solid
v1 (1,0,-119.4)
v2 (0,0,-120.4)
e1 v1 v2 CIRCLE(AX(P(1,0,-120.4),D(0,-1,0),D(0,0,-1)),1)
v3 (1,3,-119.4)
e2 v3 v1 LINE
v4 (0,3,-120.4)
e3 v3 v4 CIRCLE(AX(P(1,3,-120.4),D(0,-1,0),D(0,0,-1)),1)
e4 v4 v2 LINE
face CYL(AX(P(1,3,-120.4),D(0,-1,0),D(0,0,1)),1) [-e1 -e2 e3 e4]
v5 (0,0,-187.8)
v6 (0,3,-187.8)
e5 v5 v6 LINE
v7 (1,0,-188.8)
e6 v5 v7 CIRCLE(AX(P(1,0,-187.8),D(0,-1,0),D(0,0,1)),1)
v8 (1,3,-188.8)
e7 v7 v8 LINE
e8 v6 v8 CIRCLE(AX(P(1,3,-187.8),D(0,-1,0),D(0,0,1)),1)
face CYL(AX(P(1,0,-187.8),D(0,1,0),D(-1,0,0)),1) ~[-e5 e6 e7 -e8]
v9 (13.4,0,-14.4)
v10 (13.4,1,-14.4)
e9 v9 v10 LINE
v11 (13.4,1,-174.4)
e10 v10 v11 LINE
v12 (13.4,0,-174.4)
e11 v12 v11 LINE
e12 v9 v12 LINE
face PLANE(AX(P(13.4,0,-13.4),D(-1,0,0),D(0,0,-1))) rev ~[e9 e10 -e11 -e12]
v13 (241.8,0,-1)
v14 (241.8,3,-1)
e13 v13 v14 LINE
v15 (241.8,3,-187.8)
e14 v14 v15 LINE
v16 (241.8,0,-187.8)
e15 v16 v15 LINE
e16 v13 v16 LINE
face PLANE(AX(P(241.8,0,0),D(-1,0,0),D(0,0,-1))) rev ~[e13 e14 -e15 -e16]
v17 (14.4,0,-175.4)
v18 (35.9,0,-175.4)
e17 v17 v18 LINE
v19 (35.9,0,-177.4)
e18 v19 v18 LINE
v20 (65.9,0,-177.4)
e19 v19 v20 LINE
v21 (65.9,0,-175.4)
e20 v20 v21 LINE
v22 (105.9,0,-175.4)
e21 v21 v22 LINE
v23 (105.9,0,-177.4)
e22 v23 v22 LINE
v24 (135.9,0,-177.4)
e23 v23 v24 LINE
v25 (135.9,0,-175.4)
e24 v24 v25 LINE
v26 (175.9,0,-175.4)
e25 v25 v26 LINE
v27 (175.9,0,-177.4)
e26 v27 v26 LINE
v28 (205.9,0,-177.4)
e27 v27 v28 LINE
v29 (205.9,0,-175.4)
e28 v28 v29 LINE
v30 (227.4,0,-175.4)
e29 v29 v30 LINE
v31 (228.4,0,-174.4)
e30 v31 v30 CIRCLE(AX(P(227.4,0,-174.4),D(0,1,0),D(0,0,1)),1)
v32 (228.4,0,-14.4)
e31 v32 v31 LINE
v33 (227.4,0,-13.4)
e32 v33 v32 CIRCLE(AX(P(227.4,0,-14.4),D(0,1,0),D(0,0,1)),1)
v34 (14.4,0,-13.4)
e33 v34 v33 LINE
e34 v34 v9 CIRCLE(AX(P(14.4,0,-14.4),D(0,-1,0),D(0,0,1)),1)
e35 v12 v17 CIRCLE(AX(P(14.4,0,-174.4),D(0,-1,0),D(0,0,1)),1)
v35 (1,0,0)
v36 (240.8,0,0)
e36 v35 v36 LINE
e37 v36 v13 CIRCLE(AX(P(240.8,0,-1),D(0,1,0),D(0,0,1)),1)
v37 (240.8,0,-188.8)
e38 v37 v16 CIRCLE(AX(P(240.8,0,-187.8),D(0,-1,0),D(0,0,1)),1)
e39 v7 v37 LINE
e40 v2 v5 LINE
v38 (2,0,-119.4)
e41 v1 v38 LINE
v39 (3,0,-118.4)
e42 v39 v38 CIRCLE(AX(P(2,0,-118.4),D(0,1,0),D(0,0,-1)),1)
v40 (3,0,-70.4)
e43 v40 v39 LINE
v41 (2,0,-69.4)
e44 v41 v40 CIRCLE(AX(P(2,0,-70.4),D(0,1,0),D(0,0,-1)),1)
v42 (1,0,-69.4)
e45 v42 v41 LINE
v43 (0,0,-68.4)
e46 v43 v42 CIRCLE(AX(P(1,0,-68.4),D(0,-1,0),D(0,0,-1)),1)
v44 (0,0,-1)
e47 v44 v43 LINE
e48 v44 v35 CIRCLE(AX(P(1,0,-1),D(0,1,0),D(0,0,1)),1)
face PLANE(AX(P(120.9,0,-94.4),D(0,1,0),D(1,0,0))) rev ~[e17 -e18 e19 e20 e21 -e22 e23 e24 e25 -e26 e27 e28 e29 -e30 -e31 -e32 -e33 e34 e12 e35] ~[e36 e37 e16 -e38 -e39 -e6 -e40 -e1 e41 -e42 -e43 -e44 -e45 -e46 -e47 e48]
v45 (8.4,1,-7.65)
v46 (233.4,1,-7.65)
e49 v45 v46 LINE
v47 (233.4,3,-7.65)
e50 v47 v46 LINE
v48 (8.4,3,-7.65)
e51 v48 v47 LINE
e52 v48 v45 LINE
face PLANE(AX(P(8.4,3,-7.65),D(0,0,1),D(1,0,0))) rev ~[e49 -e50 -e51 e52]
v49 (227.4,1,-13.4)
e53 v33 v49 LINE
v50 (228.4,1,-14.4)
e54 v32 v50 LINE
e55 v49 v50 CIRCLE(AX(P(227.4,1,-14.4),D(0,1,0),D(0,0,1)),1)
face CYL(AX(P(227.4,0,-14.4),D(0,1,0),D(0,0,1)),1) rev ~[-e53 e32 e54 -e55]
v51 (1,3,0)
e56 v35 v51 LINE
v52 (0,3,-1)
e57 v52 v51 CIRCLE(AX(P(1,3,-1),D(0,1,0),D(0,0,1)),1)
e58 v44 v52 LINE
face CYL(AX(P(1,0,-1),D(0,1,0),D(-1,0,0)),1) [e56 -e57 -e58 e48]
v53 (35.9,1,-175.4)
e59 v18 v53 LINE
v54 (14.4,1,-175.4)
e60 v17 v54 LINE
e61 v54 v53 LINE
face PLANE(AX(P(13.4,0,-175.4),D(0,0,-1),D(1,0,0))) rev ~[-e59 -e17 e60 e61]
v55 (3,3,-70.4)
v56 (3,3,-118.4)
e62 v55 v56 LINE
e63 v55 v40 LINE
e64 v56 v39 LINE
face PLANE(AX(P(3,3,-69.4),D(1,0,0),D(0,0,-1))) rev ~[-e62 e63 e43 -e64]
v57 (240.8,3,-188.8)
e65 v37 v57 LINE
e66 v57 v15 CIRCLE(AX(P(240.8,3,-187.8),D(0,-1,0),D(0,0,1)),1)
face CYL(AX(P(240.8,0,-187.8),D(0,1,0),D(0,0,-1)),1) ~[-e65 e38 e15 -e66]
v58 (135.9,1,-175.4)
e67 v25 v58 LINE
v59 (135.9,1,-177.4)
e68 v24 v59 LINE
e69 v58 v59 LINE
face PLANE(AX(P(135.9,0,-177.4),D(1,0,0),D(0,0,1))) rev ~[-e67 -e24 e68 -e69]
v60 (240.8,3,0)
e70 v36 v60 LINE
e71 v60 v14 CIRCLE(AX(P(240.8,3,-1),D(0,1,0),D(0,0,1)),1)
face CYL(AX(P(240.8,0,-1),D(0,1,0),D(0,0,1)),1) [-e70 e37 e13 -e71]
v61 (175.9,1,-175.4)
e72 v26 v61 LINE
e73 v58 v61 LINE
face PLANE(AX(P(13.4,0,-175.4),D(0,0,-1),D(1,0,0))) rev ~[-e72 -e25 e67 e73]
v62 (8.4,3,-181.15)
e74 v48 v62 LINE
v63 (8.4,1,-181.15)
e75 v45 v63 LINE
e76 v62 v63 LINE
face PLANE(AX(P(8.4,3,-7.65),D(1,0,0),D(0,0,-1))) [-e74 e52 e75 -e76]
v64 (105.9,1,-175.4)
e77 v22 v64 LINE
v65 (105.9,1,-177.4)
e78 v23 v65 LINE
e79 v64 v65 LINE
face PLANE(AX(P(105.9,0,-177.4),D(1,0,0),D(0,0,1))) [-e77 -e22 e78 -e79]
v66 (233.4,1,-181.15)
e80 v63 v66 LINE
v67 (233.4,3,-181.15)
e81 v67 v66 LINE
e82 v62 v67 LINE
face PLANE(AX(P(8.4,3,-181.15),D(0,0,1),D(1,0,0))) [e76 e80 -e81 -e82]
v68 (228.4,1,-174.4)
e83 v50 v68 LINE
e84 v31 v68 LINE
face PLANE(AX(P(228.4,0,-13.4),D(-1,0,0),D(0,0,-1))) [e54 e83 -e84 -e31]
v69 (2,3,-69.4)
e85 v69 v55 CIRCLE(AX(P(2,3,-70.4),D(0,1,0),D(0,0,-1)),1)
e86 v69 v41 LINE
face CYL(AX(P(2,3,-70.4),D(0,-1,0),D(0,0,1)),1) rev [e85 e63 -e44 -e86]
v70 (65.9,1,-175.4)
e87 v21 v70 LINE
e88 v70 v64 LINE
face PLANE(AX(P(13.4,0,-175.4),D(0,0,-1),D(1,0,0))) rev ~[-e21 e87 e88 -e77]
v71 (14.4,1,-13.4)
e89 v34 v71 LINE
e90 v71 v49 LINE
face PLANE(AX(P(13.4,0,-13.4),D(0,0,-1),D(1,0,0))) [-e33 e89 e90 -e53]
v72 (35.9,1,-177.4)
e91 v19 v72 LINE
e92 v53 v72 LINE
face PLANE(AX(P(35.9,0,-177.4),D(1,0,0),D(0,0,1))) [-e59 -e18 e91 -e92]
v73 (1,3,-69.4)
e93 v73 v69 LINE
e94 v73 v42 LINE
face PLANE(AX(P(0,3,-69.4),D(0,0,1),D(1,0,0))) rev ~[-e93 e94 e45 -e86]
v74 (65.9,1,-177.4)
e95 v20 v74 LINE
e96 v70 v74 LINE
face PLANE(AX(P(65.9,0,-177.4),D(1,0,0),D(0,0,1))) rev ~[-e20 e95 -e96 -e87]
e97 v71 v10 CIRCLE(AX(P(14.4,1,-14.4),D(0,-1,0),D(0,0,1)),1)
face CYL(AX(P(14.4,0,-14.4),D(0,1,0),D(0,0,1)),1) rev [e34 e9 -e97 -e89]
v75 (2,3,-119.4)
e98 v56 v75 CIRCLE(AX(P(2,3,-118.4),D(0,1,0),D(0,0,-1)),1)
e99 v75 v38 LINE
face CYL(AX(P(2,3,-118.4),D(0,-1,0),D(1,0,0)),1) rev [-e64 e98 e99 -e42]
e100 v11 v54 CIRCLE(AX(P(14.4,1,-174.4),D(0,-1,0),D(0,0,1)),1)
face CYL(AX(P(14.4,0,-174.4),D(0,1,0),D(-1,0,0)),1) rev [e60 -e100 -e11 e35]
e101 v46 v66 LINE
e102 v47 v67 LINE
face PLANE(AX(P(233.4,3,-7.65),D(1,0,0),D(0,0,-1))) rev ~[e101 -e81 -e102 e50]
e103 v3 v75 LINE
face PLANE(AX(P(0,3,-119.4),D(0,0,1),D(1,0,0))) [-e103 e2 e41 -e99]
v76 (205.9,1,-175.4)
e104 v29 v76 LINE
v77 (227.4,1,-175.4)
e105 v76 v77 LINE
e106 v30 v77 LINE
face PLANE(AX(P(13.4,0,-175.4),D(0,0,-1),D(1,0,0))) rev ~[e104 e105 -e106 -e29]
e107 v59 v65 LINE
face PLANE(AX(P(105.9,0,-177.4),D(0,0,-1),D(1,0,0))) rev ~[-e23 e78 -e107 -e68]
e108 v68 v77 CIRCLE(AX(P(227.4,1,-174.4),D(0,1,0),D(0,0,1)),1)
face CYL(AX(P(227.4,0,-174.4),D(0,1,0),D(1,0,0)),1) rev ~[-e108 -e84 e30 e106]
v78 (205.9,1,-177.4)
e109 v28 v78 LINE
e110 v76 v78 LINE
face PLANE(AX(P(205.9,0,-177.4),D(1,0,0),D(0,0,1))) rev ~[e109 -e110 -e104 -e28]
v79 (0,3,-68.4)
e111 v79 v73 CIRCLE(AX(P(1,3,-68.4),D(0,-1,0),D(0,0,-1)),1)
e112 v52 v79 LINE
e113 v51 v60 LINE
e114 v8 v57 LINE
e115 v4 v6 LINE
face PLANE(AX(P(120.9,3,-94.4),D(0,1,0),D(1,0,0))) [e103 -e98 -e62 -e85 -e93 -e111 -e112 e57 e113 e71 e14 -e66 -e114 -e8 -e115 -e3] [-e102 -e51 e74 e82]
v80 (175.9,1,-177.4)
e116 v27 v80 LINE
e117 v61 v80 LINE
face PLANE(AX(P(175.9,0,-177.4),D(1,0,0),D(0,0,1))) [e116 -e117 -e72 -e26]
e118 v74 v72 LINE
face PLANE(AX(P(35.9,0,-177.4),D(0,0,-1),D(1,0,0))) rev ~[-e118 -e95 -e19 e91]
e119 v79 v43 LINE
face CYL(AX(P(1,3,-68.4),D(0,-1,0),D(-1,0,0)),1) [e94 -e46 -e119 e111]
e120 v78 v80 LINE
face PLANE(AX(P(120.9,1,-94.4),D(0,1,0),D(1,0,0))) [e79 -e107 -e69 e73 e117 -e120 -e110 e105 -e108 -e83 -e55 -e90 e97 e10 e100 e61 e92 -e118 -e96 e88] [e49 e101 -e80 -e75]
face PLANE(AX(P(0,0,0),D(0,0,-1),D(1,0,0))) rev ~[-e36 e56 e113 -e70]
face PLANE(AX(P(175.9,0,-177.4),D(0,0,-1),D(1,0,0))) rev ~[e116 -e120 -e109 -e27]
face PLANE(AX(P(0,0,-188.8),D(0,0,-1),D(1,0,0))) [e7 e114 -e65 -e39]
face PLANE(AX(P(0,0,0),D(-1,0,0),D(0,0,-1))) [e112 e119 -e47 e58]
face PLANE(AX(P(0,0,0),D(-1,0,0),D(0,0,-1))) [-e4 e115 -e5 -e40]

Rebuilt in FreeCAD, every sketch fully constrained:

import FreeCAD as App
import Part
import Sketcher


def edges_at(feature, points):
    """Names of the edges that pass closest to the given points."""
    edges = feature.Shape.Edges
    near = lambda p: min(range(len(edges)), key=lambda i: edges[i].distToShape(Part.Vertex(*p))[0])
    return sorted({f"Edge{near(p) + 1}" for p in points})

doc = App.newDocument("Part")
params = doc.addObject("Spreadsheet::Sheet", "Params")
for row, (alias, value) in enumerate([
    ("sketch1_width", "215 mm"),
    ("sketch1_height", "162 mm"),
    ("sketch1_width2", "241.8 mm"),
    ("sketch1_height2", "188.8 mm"),
    ("pad1_length", "3 mm"),
    ("sketch2_width", "225 mm"),
    ("sketch2_height", "173.5 mm"),
    ("pocket1_length", "2 mm"),
    ("sketch3_width", "3 mm"),
    ("sketch3_height", "50 mm"),
    ("pocket2_length", "5 mm"),
    ("fillet_radius", "1 mm"),
    ("sketch4_width", "30 mm"),
    ("sketch4_height", "2 mm"),
], start=1):
    params.set(f"A{row}", alias)
    params.set(f"B{row}", "=" + value)
    params.setAlias(f"B{row}", alias)

body = doc.addObject("PartDesign::Body", "Body")

sketch1 = body.newObject("Sketcher::SketchObject", "Sketch")
sketch1.AttachmentSupport = (doc.getObject("XZ_Plane"), [""])
sketch1.MapMode = "FlatFace"
sketch1.addGeometry([
    Part.LineSegment(App.Vector(0, -189, 0), App.Vector(0, 0, 0)),
    Part.LineSegment(App.Vector(0, 0, 0), App.Vector(242, 0, 0)),
    Part.LineSegment(App.Vector(242, 0, 0), App.Vector(242, -189, 0)),
    Part.LineSegment(App.Vector(242, -189, 0), App.Vector(0, -189, 0)),
    Part.LineSegment(App.Vector(228, -13, 0), App.Vector(13, -13, 0)),
    Part.LineSegment(App.Vector(13, -13, 0), App.Vector(13, -175, 0)),
    Part.LineSegment(App.Vector(13, -175, 0), App.Vector(228, -175, 0)),
    Part.LineSegment(App.Vector(228, -175, 0), App.Vector(228, -13, 0)),
], False)
sketch1.addConstraint([
    Sketcher.Constraint("Coincident", 0, 2, 1, 1),
    Sketcher.Constraint("Coincident", 1, 2, 2, 1),
    Sketcher.Constraint("Coincident", 2, 2, 3, 1),
    Sketcher.Constraint("Coincident", 3, 2, 0, 1),
    Sketcher.Constraint("Coincident", 4, 2, 5, 1),
    Sketcher.Constraint("Coincident", 5, 2, 6, 1),
    Sketcher.Constraint("Coincident", 6, 2, 7, 1),
    Sketcher.Constraint("Coincident", 7, 2, 4, 1),
    Sketcher.Constraint("Vertical", 0),
    Sketcher.Constraint("Horizontal", 1),
    Sketcher.Constraint("Vertical", 2),
    Sketcher.Constraint("Horizontal", 3),
    Sketcher.Constraint("Horizontal", 4),
    Sketcher.Constraint("Vertical", 5),
    Sketcher.Constraint("Horizontal", 6),
    Sketcher.Constraint("Vertical", 7),
    Sketcher.Constraint("Coincident", 0, 2, -1, 1),
    Sketcher.Constraint("DistanceX", 4, 2, 4, 1, 215.0),
    Sketcher.Constraint("DistanceY", 5, 2, 5, 1, 162.0),
    Sketcher.Constraint("DistanceX", 1, 1, 1, 2, 241.8),
    Sketcher.Constraint("DistanceY", 0, 1, 0, 2, 188.8),
    Sketcher.Constraint("DistanceX", -1, 1, 4, 2, 13.4),
    Sketcher.Constraint("DistanceY", 4, 2, -1, 1, 13.4),
])
sketch1.setExpression("Constraints[17]", "Params.sketch1_width")
sketch1.setExpression("Constraints[18]", "Params.sketch1_height")
sketch1.setExpression("Constraints[19]", "Params.sketch1_width2")
sketch1.setExpression("Constraints[20]", "Params.sketch1_height2")
pad1 = body.newObject("PartDesign::Pad", "Pad")
pad1.Profile = sketch1
pad1.setExpression("Length", "Params.pad1_length")
pad1.Reversed = True

sketch2 = body.newObject("Sketcher::SketchObject", "Sketch001")
sketch2.AttachmentSupport = (doc.getObject("XZ_Plane"), [""])
sketch2.MapMode = "FlatFace"
sketch2.AttachmentOffset = App.Placement(App.Vector(0, 0, -3), App.Rotation())
sketch2.addGeometry([
    Part.LineSegment(App.Vector(8, -181, 0), App.Vector(8, -8, 0)),
    Part.LineSegment(App.Vector(8, -8, 0), App.Vector(233, -8, 0)),
    Part.LineSegment(App.Vector(233, -8, 0), App.Vector(233, -181, 0)),
    Part.LineSegment(App.Vector(233, -181, 0), App.Vector(8, -181, 0)),
], False)
sketch2.addConstraint([
    Sketcher.Constraint("Coincident", 0, 2, 1, 1),
    Sketcher.Constraint("Coincident", 1, 2, 2, 1),
    Sketcher.Constraint("Coincident", 2, 2, 3, 1),
    Sketcher.Constraint("Coincident", 3, 2, 0, 1),
    Sketcher.Constraint("Vertical", 0),
    Sketcher.Constraint("Horizontal", 1),
    Sketcher.Constraint("Vertical", 2),
    Sketcher.Constraint("Horizontal", 3),
    Sketcher.Constraint("DistanceX", 1, 1, 1, 2, 225.0),
    Sketcher.Constraint("DistanceY", 0, 1, 0, 2, 173.5),
    Sketcher.Constraint("DistanceX", -1, 1, 0, 2, 8.4),
    Sketcher.Constraint("DistanceY", 0, 2, -1, 1, 7.65),
])
sketch2.setExpression("Constraints[8]", "Params.sketch2_width")
sketch2.setExpression("Constraints[9]", "Params.sketch2_height")
pocket1 = body.newObject("PartDesign::Pocket", "Pocket")
pocket1.Profile = sketch2
pocket1.setExpression("Length", "Params.pocket1_length")
pocket1.Reversed = True

sketch3 = body.newObject("Sketcher::SketchObject", "Sketch002")
sketch3.AttachmentSupport = (doc.getObject("XZ_Plane"), [""])
sketch3.MapMode = "FlatFace"
sketch3.AttachmentOffset = App.Placement(App.Vector(0, 0, -3), App.Rotation())
sketch3.addGeometry([
    Part.LineSegment(App.Vector(0, -119.4, 0), App.Vector(0, -69.4, 0)),
    Part.LineSegment(App.Vector(0, -69.4, 0), App.Vector(3, -69.4, 0)),
    Part.LineSegment(App.Vector(3, -69.4, 0), App.Vector(3, -119.4, 0)),
    Part.LineSegment(App.Vector(3, -119.4, 0), App.Vector(0, -119.4, 0)),
], False)
sketch3.addConstraint([
    Sketcher.Constraint("Coincident", 0, 2, 1, 1),
    Sketcher.Constraint("Coincident", 1, 2, 2, 1),
    Sketcher.Constraint("Coincident", 2, 2, 3, 1),
    Sketcher.Constraint("Coincident", 3, 2, 0, 1),
    Sketcher.Constraint("Vertical", 0),
    Sketcher.Constraint("Horizontal", 1),
    Sketcher.Constraint("Vertical", 2),
    Sketcher.Constraint("Horizontal", 3),
    Sketcher.Constraint("PointOnObject", 0, 2, -2),
    Sketcher.Constraint("DistanceX", 1, 1, 1, 2, 3.0),
    Sketcher.Constraint("DistanceY", 0, 1, 0, 2, 50.0),
    Sketcher.Constraint("DistanceY", 0, 2, -1, 1, 69.4),
])
sketch3.setExpression("Constraints[9]", "Params.sketch3_width")
sketch3.setExpression("Constraints[10]", "Params.sketch3_height")
pocket2 = body.newObject("PartDesign::Pocket", "Pocket001")
pocket2.Profile = sketch3
pocket2.setExpression("Length", "Params.pocket2_length")
pocket2.Reversed = True
doc.recompute()

fillet = body.newObject("PartDesign::Fillet", "Fillet")
fillet.Base = (pocket2, edges_at(pocket2, [
    (228.4, 0.5, -175.4),
    (13.4, 0.5, -175.4),
    (228.4, 0.5, -13.4),
    (13.4, 0.5, -13.4),
    (0, 1.5, -69.4),
    (0, 1.5, -119.4),
    (3, 1.5, -119.4),
    (3, 1.5, -69.4),
    (0, 1.5, -188.8),
    (241.8, 1.5, -188.8),
    (241.8, 1.5, 0),
    (0, 1.5, 0),
]))
fillet.setExpression("Radius", "Params.fillet_radius")

sketch4 = body.newObject("Sketcher::SketchObject", "Sketch003")
sketch4.AttachmentSupport = (doc.getObject("XZ_Plane"), [""])
sketch4.MapMode = "FlatFace"
sketch4.addGeometry([
    Part.LineSegment(App.Vector(35.9, -175.4, 0), App.Vector(35.9, -177.4, 0)),
    Part.LineSegment(App.Vector(35.9, -177.4, 0), App.Vector(65.9, -177.4, 0)),
    Part.LineSegment(App.Vector(65.9, -177.4, 0), App.Vector(65.9, -175.4, 0)),
    Part.LineSegment(App.Vector(65.9, -175.4, 0), App.Vector(35.9, -175.4, 0)),
    Part.LineSegment(App.Vector(105.9, -175.4, 0), App.Vector(105.9, -177.4, 0)),
    Part.LineSegment(App.Vector(105.9, -177.4, 0), App.Vector(135.9, -177.4, 0)),
    Part.LineSegment(App.Vector(135.9, -177.4, 0), App.Vector(135.9, -175.4, 0)),
    Part.LineSegment(App.Vector(135.9, -175.4, 0), App.Vector(105.9, -175.4, 0)),
    Part.LineSegment(App.Vector(175.9, -175.4, 0), App.Vector(175.9, -177.4, 0)),
    Part.LineSegment(App.Vector(175.9, -177.4, 0), App.Vector(205.9, -177.4, 0)),
    Part.LineSegment(App.Vector(205.9, -177.4, 0), App.Vector(205.9, -175.4, 0)),
    Part.LineSegment(App.Vector(205.9, -175.4, 0), App.Vector(175.9, -175.4, 0)),
], False)
sketch4.addConstraint([
    Sketcher.Constraint("Coincident", 0, 2, 1, 1),
    Sketcher.Constraint("Coincident", 1, 2, 2, 1),
    Sketcher.Constraint("Coincident", 2, 2, 3, 1),
    Sketcher.Constraint("Coincident", 3, 2, 0, 1),
    Sketcher.Constraint("Coincident", 4, 2, 5, 1),
    Sketcher.Constraint("Coincident", 5, 2, 6, 1),
    Sketcher.Constraint("Coincident", 6, 2, 7, 1),
    Sketcher.Constraint("Coincident", 7, 2, 4, 1),
    Sketcher.Constraint("Coincident", 8, 2, 9, 1),
    Sketcher.Constraint("Coincident", 9, 2, 10, 1),
    Sketcher.Constraint("Coincident", 10, 2, 11, 1),
    Sketcher.Constraint("Coincident", 11, 2, 8, 1),
    Sketcher.Constraint("Vertical", 0),
    Sketcher.Constraint("Horizontal", 1),
    Sketcher.Constraint("Vertical", 2),
    Sketcher.Constraint("Horizontal", 3),
    Sketcher.Constraint("Vertical", 4),
    Sketcher.Constraint("Horizontal", 5),
    Sketcher.Constraint("Vertical", 6),
    Sketcher.Constraint("Horizontal", 7),
    Sketcher.Constraint("Vertical", 8),
    Sketcher.Constraint("Horizontal", 9),
    Sketcher.Constraint("Vertical", 10),
    Sketcher.Constraint("Horizontal", 11),
    Sketcher.Constraint("Horizontal", 1, 2, 4, 2),
    Sketcher.Constraint("Horizontal", 3, 2, 6, 2),
    Sketcher.Constraint("Horizontal", 5, 2, 8, 2),
    Sketcher.Constraint("Horizontal", 7, 2, 10, 2),
    Sketcher.Constraint("Equal", 3, 5),
    Sketcher.Constraint("Equal", 7, 9),
    Sketcher.Constraint("DistanceX", 1, 1, 1, 2, 30.0),
    Sketcher.Constraint("DistanceY", 0, 2, 0, 1, 2.0),
    Sketcher.Constraint("DistanceX", 1, 2, 4, 2, 40.0),
    Sketcher.Constraint("DistanceX", 5, 2, 8, 2, 40.0),
    Sketcher.Constraint("DistanceX", -1, 1, 0, 2, 35.9),
    Sketcher.Constraint("DistanceY", 0, 2, -1, 1, 177.4),
])
sketch4.setExpression("Constraints[30]", "Params.sketch4_width")
sketch4.setExpression("Constraints[31]", "Params.sketch4_height")
pocket3 = body.newObject("PartDesign::Pocket", "Pocket002")
pocket3.Profile = sketch4
pocket3.Type = "ThroughAll"

doc.recompute()
